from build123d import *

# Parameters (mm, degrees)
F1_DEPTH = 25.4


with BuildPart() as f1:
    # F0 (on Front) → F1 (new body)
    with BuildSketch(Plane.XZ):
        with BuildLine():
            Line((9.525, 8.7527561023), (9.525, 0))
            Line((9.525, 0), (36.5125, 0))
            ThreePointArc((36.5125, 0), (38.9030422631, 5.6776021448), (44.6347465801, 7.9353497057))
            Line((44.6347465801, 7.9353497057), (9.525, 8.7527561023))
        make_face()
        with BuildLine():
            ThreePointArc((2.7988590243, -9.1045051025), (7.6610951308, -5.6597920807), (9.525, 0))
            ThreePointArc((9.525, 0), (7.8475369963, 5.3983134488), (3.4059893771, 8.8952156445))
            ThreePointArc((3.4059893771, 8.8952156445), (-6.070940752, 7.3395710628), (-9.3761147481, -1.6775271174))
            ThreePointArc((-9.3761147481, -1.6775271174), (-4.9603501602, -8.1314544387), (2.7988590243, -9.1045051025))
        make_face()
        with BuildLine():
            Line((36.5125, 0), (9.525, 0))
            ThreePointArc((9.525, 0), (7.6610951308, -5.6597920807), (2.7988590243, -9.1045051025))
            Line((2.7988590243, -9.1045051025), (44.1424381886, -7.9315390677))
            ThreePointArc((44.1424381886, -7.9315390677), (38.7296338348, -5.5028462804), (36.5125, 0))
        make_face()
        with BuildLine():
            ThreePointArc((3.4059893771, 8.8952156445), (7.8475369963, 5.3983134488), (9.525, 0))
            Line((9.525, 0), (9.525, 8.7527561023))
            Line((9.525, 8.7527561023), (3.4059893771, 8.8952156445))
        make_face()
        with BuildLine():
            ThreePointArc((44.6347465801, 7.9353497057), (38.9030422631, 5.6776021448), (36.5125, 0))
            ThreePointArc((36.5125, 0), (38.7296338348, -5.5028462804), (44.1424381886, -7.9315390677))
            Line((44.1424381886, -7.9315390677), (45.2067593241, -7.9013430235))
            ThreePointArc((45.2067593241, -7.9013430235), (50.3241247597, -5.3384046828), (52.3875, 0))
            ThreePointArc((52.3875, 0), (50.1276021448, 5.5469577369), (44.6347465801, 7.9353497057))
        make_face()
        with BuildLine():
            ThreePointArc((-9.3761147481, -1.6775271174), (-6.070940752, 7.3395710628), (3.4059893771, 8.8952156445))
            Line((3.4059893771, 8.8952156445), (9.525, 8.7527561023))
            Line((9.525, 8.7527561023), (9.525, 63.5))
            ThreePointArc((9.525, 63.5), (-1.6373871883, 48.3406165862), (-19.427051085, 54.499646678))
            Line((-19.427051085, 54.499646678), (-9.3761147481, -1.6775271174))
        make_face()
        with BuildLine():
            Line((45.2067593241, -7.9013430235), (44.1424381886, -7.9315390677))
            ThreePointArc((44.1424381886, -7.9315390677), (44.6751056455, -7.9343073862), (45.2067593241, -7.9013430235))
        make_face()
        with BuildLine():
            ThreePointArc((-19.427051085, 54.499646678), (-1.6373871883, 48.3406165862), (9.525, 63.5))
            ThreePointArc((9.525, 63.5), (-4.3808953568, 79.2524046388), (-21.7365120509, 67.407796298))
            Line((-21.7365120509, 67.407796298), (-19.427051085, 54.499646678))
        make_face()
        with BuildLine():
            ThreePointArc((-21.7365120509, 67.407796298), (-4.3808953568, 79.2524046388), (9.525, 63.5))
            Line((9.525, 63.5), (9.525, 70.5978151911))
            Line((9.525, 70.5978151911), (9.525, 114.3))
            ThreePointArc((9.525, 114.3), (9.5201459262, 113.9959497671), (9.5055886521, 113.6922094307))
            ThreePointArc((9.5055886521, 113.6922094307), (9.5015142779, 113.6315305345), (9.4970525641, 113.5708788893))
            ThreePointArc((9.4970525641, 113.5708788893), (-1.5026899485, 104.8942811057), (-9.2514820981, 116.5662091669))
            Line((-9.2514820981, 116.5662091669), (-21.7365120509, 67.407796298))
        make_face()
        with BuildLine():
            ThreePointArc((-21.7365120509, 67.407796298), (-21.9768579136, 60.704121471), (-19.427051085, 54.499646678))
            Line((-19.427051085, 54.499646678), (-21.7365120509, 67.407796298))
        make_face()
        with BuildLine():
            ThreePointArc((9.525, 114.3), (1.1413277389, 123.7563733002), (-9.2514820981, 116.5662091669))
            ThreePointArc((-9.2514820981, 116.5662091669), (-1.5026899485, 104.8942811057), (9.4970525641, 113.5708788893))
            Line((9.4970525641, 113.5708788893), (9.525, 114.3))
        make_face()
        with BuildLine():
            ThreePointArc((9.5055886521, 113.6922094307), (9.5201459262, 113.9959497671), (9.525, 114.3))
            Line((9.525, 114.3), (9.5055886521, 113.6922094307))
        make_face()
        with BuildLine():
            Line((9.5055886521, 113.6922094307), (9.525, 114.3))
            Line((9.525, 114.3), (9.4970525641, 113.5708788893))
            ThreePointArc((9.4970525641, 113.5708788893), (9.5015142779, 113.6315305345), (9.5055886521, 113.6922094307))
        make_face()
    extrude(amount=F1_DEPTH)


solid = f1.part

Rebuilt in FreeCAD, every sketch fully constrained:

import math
import FreeCAD as App
import Part
import Sketcher
Q = App.Units.Quantity

doc = App.newDocument("Part")
body = doc.addObject("PartDesign::Body", "Body")

# Sketch on XZ plane
sketch1 = doc.addObject("Sketcher::SketchObject", "Sketch")
body.addObject(sketch1)
sketch1.AttachmentSupport = (doc.XZ_Plane, [""])
sketch1.MapMode = "FlatFace"
sketch1.addGeometry([
    Part.LineSegment(App.Vector(9.5, 8.8, 0), App.Vector(9.5, 114.3, 0)),  # 0
    Part.ArcOfCircle(Part.Circle(App.Vector(0, 114.3, 0), App.Vector(0, 0, 1), 9.5), math.radians(0), math.radians(166)),  # 1
    Part.LineSegment(App.Vector(-9.3, 116.6, 0), App.Vector(-21.7, 67.4, 0)),  # 2
    Part.ArcOfCircle(Part.Circle(App.Vector(-6.3, 63.5, 0), App.Vector(0, 0, 1), 15.9), math.radians(166), math.radians(215)),  # 3
    Part.LineSegment(App.Vector(-19.4, 54.5, 0), App.Vector(-9.4, -1.7, 0)),  # 4
    Part.ArcOfCircle(Part.Circle(App.Vector(0, 0, 0), App.Vector(0, 0, 1), 9.5), math.radians(-170), math.radians(-73)),  # 5
    Part.LineSegment(App.Vector(2.8, -9.1, 0), App.Vector(44.1, -7.9, 0)),  # 6
    Part.ArcOfCircle(Part.Circle(App.Vector(44.5, 0, 0), App.Vector(0, 0, 1), 7.9), math.radians(-92.22), math.radians(-84.53)),  # 7
    Part.ArcOfCircle(Part.Circle(App.Vector(44.5, 0, 0), App.Vector(0, 0, 1), 7.9), math.radians(-85), math.radians(0)),  # 8
    Part.ArcOfCircle(Part.Circle(App.Vector(44.5, 0, 0), App.Vector(0, 0, 1), 7.9), math.radians(0), math.radians(89)),  # 9
    Part.LineSegment(App.Vector(44.6, 7.9, 0), App.Vector(9.5, 8.8, 0)),  # 10
], False)
sketch1.addConstraint([
    Sketcher.Constraint("Tangent", 0, 2, 1, 1),
    Sketcher.Constraint("Coincident", 1, 2, 2, 1),
    Sketcher.Constraint("Tangent", 2, 2, 3, 1),
    Sketcher.Constraint("Coincident", 3, 2, 4, 1),
    Sketcher.Constraint("Tangent", 4, 2, 5, 1),
    Sketcher.Constraint("Coincident", 5, 2, 6, 1),
    Sketcher.Constraint("Coincident", 6, 2, 7, 1),
    Sketcher.Constraint("Tangent", 7, 2, 8, 1),
    Sketcher.Constraint("Tangent", 8, 2, 9, 1),
    Sketcher.Constraint("Tangent", 9, 2, 10, 1),
    Sketcher.Constraint("Coincident", 10, 2, 0, 1),
    Sketcher.Constraint("Vertical", 0),
    Sketcher.Constraint("Coincident", 5, 3, -1, 1),
    Sketcher.Constraint("Coincident", 9, 3, 7, 3),
    Sketcher.Constraint("Equal", 1, 5),
    Sketcher.Constraint("PointOnObject", 1, 3, -2),
    Sketcher.Constraint("PointOnObject", 7, 3, -1),
    Sketcher.Constraint("PointOnObject", 8, 2, -1),
    Sketcher.Constraint("Radius", 1, Q("0.375 in")),
    Sketcher.Constraint("Radius", 3, Q("0.625 in")),
    Sketcher.Constraint("Radius", 7, Q("0.3125 in")),
    Sketcher.Constraint("DistanceY", 3, 3, 1, 3, Q("2 in")),
    Sketcher.Constraint("DistanceX", 3, 3, 7, 3, Q("2 in")),
    Sketcher.Constraint("DistanceY", -1, 1, 1, 3, Q("4.5 in")),
    Sketcher.Constraint("DistanceX", 3, 3, -1, 1, Q("0.25 in")),
    Sketcher.Constraint("DistanceX", 5, 2, 6, 2, Q("1.6277 in")),
    Sketcher.Constraint("DistanceX", 5, 2, 7, 2, Q("42.4079 mm")),
    Sketcher.Constraint("Distance", 10, Q("35.119261 mm")),
    Sketcher.Constraint("DistanceY", -1, 1, 1, 2, Q("116.566209 mm")),
    Sketcher.Constraint("DistanceX", 3, 2, -1, 1, Q("19.427051 mm")),
    Sketcher.Constraint("DistanceX", -1, 1, 5, 2, Q("2.798859 mm")),
])
pad1 = doc.addObject("PartDesign::Pad", "Pad")
body.addObject(pad1)
pad1.Profile = sketch1
pad1.Length = Q("1 in")

doc.recompute()
